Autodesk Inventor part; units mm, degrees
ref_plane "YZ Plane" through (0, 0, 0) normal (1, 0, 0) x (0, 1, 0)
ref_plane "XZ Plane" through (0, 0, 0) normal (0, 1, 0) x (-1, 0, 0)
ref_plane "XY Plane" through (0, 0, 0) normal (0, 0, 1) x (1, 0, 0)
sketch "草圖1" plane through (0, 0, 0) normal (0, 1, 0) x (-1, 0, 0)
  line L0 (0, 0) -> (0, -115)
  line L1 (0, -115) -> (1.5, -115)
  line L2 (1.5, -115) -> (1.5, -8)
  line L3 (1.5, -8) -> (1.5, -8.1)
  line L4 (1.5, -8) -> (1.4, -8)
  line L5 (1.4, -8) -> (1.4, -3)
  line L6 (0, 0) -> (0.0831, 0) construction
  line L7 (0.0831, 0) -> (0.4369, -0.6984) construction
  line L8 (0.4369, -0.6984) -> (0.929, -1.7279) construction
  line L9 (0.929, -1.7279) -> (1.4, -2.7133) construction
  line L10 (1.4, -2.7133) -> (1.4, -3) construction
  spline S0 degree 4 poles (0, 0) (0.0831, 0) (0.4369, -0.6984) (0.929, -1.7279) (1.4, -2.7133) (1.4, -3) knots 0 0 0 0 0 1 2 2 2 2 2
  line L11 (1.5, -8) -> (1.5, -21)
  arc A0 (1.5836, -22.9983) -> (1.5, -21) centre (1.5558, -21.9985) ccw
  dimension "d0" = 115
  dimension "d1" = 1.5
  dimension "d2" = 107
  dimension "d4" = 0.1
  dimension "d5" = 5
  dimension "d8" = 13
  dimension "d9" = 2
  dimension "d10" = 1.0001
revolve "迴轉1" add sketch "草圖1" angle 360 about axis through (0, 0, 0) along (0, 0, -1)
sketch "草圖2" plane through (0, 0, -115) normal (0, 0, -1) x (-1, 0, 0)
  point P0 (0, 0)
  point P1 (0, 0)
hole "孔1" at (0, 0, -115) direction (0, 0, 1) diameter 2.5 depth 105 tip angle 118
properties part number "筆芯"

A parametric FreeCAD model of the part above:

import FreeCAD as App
import Part
import Sketcher

V = App.Vector

doc = App.newDocument("Part")
body = doc.addObject("PartDesign::Body", "Body")

sketch1 = body.newObject("Sketcher::SketchObject", "Sketch")
sketch1.AttachmentSupport = (doc.getObject("XZ_Plane"), [""])
sketch1.MapMode = "FlatFace"
sketch1.addGeometry([
    Part.BSplineCurve([V(0, 0, 0), V(-0.0831, 0, 0), V(-0.4369, -0.6984, 0), V(-0.929, -1.7279, 0), V(-1.4, -2.7133, 0), V(-1.4, -3, 0)], [5, 1, 5], [0, 1, 2], False, 4, [1, 1, 1, 1, 1, 1], False),
    Part.LineSegment(V(0, 0, 0), V(0, -115, 0)),
    Part.LineSegment(V(0, -115, 0), V(-1.5, -115, 0)),
    Part.LineSegment(V(-1.5, -115, 0), V(-1.5, -8, 0)),
    Part.LineSegment(V(-1.5, -8, 0), V(-1.4, -8, 0)),
    Part.LineSegment(V(-1.4, -8, 0), V(-1.4, -3, 0)),
], False)
sketch1.addConstraint([
    Sketcher.Constraint("Block", 0),
    Sketcher.Constraint("Coincident", 0, 1, 1, 1),
    Sketcher.Constraint("Coincident", 1, 2, 2, 1),
    Sketcher.Constraint("Coincident", 2, 2, 3, 1),
    Sketcher.Constraint("Coincident", 3, 2, 4, 1),
    Sketcher.Constraint("Coincident", 4, 2, 5, 1),
    Sketcher.Constraint("Coincident", 5, 2, 0, 2),
    Sketcher.Constraint("Vertical", 1),
    Sketcher.Constraint("Horizontal", 2),
    Sketcher.Constraint("Vertical", 3),
    Sketcher.Constraint("Horizontal", 4),
    Sketcher.Constraint("Vertical", 5),
    Sketcher.Constraint("DistanceY", 1, 2, 1, 1, 115.0),
    Sketcher.Constraint("DistanceY", 3, 1, 3, 2, 107.0),
    Sketcher.Constraint("DistanceX", 2, 2, 2, 1, 1.5),
])
revolution = body.newObject("PartDesign::Revolution", "Revolution")
revolution.Profile = sketch1
revolution.ReferenceAxis = (sketch1, ["V_Axis"])
revolution.Angle = 360

sketch2 = body.newObject("Sketcher::SketchObject", "Sketch001")
sketch2.AttachmentSupport = (doc.getObject("XY_Plane"), [""])
sketch2.MapMode = "FlatFace"
sketch2.AttachmentOffset = App.Placement(V(0, 0, -115), App.Rotation())
sketch2.addGeometry(Part.Circle(V(0, 0, 0), V(0, 0, 1), 1.2), False)
sketch2.addConstraint([
    Sketcher.Constraint("Coincident", 0, 3, -1, 1),
    Sketcher.Constraint("Diameter", 0, 2.5),
])
doc.recompute()
hole = body.newObject("PartDesign::Hole", "Hole")
hole.Profile = sketch2
hole.ThreadType = "None"
hole.Diameter = 2.5
hole.DepthType = "Dimension"
hole.Depth = 105
hole.DrillPoint = "Angled"
hole.DrillPointAngle = 118
hole.Reversed = True

doc.recompute()
